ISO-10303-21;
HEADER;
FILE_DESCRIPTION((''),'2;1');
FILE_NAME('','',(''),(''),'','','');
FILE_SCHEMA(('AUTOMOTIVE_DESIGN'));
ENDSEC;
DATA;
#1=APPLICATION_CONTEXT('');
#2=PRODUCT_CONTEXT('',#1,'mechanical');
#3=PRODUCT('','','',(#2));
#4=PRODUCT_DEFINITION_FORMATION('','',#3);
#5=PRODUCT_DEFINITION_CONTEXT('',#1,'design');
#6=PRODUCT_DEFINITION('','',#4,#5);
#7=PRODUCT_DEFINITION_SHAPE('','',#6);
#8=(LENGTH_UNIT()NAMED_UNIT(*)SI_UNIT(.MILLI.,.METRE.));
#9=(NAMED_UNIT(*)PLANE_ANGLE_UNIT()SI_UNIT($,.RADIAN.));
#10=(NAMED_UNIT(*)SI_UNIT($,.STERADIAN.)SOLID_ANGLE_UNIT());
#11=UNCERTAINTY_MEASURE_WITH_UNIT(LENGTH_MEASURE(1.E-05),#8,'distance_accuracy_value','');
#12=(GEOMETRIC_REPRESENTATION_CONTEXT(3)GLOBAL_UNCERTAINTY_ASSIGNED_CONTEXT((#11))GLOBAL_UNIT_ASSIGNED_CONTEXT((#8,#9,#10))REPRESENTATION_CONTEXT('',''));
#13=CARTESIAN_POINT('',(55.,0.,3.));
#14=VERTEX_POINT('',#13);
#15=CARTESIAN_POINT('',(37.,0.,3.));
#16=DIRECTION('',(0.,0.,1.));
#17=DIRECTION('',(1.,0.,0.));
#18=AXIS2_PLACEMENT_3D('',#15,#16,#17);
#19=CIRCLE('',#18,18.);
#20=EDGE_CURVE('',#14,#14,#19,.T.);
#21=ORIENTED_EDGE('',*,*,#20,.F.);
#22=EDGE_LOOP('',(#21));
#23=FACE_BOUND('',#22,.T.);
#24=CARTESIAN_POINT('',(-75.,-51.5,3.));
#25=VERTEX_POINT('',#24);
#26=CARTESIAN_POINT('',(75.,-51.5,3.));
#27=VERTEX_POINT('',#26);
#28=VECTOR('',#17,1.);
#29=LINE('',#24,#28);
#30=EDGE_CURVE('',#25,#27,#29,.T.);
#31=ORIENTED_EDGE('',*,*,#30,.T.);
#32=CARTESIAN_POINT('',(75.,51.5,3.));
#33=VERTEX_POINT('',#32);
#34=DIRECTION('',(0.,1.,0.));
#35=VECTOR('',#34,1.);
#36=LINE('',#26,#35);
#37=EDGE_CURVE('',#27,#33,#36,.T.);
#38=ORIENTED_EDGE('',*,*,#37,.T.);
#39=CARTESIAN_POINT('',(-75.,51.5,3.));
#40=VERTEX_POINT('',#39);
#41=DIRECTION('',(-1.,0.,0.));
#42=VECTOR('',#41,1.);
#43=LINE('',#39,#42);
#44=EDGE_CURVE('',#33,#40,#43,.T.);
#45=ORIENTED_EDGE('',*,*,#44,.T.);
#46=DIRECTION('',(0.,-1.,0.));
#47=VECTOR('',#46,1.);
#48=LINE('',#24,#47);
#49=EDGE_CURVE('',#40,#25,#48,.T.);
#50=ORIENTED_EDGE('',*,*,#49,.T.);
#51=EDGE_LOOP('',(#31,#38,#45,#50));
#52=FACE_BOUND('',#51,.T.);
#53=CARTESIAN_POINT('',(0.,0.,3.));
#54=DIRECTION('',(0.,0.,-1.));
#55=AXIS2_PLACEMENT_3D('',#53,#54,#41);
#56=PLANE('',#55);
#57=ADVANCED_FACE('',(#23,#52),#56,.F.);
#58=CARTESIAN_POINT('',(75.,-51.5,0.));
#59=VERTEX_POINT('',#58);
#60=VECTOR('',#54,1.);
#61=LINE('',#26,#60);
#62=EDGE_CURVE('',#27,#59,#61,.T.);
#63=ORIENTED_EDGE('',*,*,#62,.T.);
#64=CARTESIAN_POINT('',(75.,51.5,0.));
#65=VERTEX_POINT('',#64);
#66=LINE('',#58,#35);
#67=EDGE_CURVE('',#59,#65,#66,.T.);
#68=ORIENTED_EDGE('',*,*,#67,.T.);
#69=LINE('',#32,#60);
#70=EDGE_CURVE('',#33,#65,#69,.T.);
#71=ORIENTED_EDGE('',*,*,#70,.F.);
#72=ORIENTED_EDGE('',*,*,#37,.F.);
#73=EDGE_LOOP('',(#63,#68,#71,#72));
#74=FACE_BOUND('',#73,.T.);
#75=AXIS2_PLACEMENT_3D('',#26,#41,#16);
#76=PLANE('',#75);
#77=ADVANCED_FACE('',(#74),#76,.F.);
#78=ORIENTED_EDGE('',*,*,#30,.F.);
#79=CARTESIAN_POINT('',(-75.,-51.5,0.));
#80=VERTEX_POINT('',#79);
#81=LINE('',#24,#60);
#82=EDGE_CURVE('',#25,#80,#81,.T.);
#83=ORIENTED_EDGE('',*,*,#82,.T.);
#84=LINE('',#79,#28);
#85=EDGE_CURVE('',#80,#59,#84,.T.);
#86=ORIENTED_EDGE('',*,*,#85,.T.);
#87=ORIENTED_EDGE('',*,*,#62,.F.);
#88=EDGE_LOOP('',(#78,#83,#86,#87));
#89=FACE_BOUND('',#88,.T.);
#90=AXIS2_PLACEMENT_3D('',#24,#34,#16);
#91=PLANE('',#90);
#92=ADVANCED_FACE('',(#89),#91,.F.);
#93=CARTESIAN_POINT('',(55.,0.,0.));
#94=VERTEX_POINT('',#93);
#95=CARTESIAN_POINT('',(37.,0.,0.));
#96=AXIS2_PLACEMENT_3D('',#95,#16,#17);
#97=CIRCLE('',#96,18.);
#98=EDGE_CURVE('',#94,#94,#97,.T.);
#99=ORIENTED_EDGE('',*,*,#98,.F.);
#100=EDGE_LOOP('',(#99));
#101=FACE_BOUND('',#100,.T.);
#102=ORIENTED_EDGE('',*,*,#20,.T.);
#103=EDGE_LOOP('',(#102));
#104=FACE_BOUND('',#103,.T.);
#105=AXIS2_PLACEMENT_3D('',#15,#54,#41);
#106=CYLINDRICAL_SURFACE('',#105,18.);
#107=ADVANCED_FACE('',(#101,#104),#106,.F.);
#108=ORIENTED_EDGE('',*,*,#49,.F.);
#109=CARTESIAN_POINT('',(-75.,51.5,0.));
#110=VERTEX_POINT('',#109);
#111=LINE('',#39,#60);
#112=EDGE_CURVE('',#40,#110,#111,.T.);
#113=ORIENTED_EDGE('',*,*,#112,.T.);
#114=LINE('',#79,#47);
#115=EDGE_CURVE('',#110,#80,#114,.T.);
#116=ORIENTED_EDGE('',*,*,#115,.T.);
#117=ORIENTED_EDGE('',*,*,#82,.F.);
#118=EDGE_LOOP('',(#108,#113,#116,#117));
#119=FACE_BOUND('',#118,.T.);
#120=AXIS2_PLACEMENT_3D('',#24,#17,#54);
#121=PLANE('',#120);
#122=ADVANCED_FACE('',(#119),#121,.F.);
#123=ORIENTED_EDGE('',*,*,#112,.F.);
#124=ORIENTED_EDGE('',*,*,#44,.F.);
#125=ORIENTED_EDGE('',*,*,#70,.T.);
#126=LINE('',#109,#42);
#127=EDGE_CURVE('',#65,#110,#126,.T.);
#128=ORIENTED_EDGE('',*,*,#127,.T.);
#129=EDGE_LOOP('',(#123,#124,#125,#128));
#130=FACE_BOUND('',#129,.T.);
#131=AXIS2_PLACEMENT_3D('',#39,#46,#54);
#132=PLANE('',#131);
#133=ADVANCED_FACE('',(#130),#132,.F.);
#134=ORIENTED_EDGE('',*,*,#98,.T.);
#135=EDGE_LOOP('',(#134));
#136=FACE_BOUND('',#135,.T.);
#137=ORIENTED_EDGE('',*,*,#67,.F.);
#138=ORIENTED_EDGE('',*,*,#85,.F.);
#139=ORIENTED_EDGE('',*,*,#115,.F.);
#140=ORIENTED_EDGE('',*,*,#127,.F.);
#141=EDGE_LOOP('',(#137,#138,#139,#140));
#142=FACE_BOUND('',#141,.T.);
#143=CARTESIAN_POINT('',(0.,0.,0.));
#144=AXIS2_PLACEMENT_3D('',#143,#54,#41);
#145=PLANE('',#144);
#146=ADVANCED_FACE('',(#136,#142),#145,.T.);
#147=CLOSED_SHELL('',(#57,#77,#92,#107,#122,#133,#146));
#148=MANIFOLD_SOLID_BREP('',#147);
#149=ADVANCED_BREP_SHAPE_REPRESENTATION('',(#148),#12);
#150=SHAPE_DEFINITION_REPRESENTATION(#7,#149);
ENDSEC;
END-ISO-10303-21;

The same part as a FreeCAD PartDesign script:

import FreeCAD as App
import Part
import Sketcher

doc = App.newDocument("Part")
body = doc.addObject("PartDesign::Body", "Body")

sketch1 = doc.addObject("Sketcher::SketchObject", "Sketch")
body.addObject(sketch1)
sketch1.AttachmentSupport = (doc.XY_Plane, [""])
sketch1.MapMode = "FlatFace"
sketch1.addGeometry(Part.LineSegment(App.Vector(-75, 52, 0), App.Vector(-75, -52, 0)), False)
sketch1.addGeometry(Part.LineSegment(App.Vector(-75, -52, 0), App.Vector(75, -52, 0)), False)
sketch1.addGeometry(Part.LineSegment(App.Vector(75, -52, 0), App.Vector(75, 52, 0)), False)
sketch1.addGeometry(Part.LineSegment(App.Vector(75, 52, 0), App.Vector(-75, 52, 0)), False)
sketch1.addGeometry(Part.Circle(App.Vector(37, 0, 0), App.Vector(0, 0, 1), 18), False)
sketch1.addConstraint(Sketcher.Constraint("Coincident", 0, 2, 1, 1))
sketch1.addConstraint(Sketcher.Constraint("Coincident", 1, 2, 2, 1))
sketch1.addConstraint(Sketcher.Constraint("Coincident", 2, 2, 3, 1))
sketch1.addConstraint(Sketcher.Constraint("Coincident", 3, 2, 0, 1))
sketch1.addConstraint(Sketcher.Constraint("Vertical", 0))
sketch1.addConstraint(Sketcher.Constraint("Horizontal", 1))
sketch1.addConstraint(Sketcher.Constraint("Vertical", 2))
sketch1.addConstraint(Sketcher.Constraint("Horizontal", 3))
sketch1.addConstraint(Sketcher.Constraint("Symmetric", 0, 2, 2, 2, -1, 1))
sketch1.addConstraint(Sketcher.Constraint("PointOnObject", 4, 3, -1))
sketch1.addConstraint(Sketcher.Constraint("Diameter", 4, 36.0))
sketch1.addConstraint(Sketcher.Constraint("DistanceX", 1, 1, 1, 2, 150.0))
sketch1.addConstraint(Sketcher.Constraint("DistanceY", 0, 2, 0, 1, 103.0))
sketch1.addConstraint(Sketcher.Constraint("DistanceX", -1, 1, 4, 3, 37.0))
pad1 = doc.addObject("PartDesign::Pad", "Pad")
body.addObject(pad1)
pad1.Profile = sketch1
pad1.Length = 3

doc.recompute()
